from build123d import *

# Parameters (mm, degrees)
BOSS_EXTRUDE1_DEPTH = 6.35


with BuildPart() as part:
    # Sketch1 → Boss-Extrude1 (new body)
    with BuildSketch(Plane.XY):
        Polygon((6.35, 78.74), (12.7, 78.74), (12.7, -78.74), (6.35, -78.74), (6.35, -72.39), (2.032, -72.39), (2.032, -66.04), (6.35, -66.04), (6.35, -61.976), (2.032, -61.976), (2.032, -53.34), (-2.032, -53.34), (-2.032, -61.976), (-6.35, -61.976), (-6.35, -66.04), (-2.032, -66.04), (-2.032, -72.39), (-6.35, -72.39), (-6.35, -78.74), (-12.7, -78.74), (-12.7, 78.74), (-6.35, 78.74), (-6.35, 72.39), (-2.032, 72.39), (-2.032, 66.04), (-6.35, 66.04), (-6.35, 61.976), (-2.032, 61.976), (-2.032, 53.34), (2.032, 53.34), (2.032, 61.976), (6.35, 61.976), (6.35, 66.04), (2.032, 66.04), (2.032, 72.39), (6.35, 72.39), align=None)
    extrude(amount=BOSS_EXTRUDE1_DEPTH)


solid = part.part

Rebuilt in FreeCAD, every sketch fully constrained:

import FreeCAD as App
import Part
import Sketcher
Q = App.Units.Quantity


def add_polygon(sketch, points):
    """Adds a closed chain of lines whose ends are joined by coincident constraints."""
    first, n = sketch.GeometryCount, len(points)
    for a, b in zip(points, points[1:] + points[:1]):
        sketch.addGeometry(Part.LineSegment(App.Vector(*a, 0), App.Vector(*b, 0)), False)
    for i in range(n):
        sketch.addConstraint(Sketcher.Constraint("Coincident", first + i, 2, first + (i + 1) % n, 1))

doc = App.newDocument("Part")
body = doc.addObject("PartDesign::Body", "Body")

sketch1 = doc.addObject("Sketcher::SketchObject", "Sketch")
body.addObject(sketch1)
sketch1.AttachmentSupport = (doc.XY_Plane, [""])
sketch1.MapMode = "FlatFace"
add_polygon(sketch1, [(12.7, 78.74), (6.35, 78.74), (6.35, 72.39), (2.032, 72.39), (2.032, 66.04), (6.35, 66.04), (6.35, 61.976), (2.032, 61.976), (2.032, 53.34), (-2.032, 53.34), (-2.032, 61.976), (-6.35, 61.976), (-6.35, 66.04), (-2.032, 66.04), (-2.032, 72.39), (-6.35, 72.39), (-6.35, 78.74), (-12.7, 78.74), (-12.7, -78.74), (-6.35, -78.74), (-6.35, -72.39), (-2.032, -72.39), (-2.032, -66.04), (-6.35, -66.04), (-6.35, -61.976), (-2.032, -61.976), (-2.032, -53.34), (2.032, -53.34), (2.032, -61.976), (6.35, -61.976), (6.35, -66.04), (2.032, -66.04), (2.032, -72.39), (6.35, -72.39), (6.35, -78.74), (12.7, -78.74)])
sketch1.addConstraint(Sketcher.Constraint("Horizontal", 0))
sketch1.addConstraint(Sketcher.Constraint("Vertical", 1))
sketch1.addConstraint(Sketcher.Constraint("Horizontal", 2))
sketch1.addConstraint(Sketcher.Constraint("Vertical", 3))
sketch1.addConstraint(Sketcher.Constraint("Horizontal", 4))
sketch1.addConstraint(Sketcher.Constraint("Vertical", 5))
sketch1.addConstraint(Sketcher.Constraint("Horizontal", 6))
sketch1.addConstraint(Sketcher.Constraint("Vertical", 7))
sketch1.addConstraint(Sketcher.Constraint("Horizontal", 8))
sketch1.addConstraint(Sketcher.Constraint("Vertical", 9))
sketch1.addConstraint(Sketcher.Constraint("Horizontal", 10))
sketch1.addConstraint(Sketcher.Constraint("Vertical", 11))
sketch1.addConstraint(Sketcher.Constraint("Horizontal", 12))
sketch1.addConstraint(Sketcher.Constraint("Vertical", 13))
sketch1.addConstraint(Sketcher.Constraint("Horizontal", 14))
sketch1.addConstraint(Sketcher.Constraint("Vertical", 15))
sketch1.addConstraint(Sketcher.Constraint("Horizontal", 16))
sketch1.addConstraint(Sketcher.Constraint("Vertical", 17))
sketch1.addConstraint(Sketcher.Constraint("Horizontal", 18))
sketch1.addConstraint(Sketcher.Constraint("Vertical", 19))
sketch1.addConstraint(Sketcher.Constraint("Horizontal", 20))
sketch1.addConstraint(Sketcher.Constraint("Vertical", 21))
sketch1.addConstraint(Sketcher.Constraint("Horizontal", 22))
sketch1.addConstraint(Sketcher.Constraint("Vertical", 23))
sketch1.addConstraint(Sketcher.Constraint("Horizontal", 24))
sketch1.addConstraint(Sketcher.Constraint("Vertical", 25))
sketch1.addConstraint(Sketcher.Constraint("Horizontal", 26))
sketch1.addConstraint(Sketcher.Constraint("Vertical", 27))
sketch1.addConstraint(Sketcher.Constraint("Horizontal", 28))
sketch1.addConstraint(Sketcher.Constraint("Vertical", 29))
sketch1.addConstraint(Sketcher.Constraint("Horizontal", 30))
sketch1.addConstraint(Sketcher.Constraint("Vertical", 31))
sketch1.addConstraint(Sketcher.Constraint("Horizontal", 32))
sketch1.addConstraint(Sketcher.Constraint("Vertical", 33))
sketch1.addConstraint(Sketcher.Constraint("Horizontal", 34))
sketch1.addConstraint(Sketcher.Constraint("Vertical", 35))
sketch1.addConstraint(Sketcher.Constraint("Symmetric", 0, 2, 18, 2, -1, 1))
sketch1.addConstraint(Sketcher.Constraint("Symmetric", 2, 2, 20, 2, -1, 1))
sketch1.addConstraint(Sketcher.Constraint("Symmetric", 4, 2, 22, 2, -1, 1))
sketch1.addConstraint(Sketcher.Constraint("Symmetric", 6, 2, 24, 2, -1, 1))
sketch1.addConstraint(Sketcher.Constraint("Symmetric", 8, 2, 26, 2, -1, 1))
sketch1.addConstraint(Sketcher.Constraint("Symmetric", 10, 2, 28, 2, -1, 1))
sketch1.addConstraint(Sketcher.Constraint("Symmetric", 12, 2, 30, 2, -1, 1))
sketch1.addConstraint(Sketcher.Constraint("Symmetric", 14, 2, 32, 2, -1, 1))
sketch1.addConstraint(Sketcher.Constraint("Symmetric", 16, 2, 34, 2, -1, 1))
sketch1.addConstraint(Sketcher.Constraint("Symmetric", 6, 2, 9, 2, -2))
sketch1.addConstraint(Sketcher.Constraint("Symmetric", 4, 2, 11, 2, -2))
sketch1.addConstraint(Sketcher.Constraint("Symmetric", 2, 2, 13, 2, -2))
sketch1.addConstraint(Sketcher.Constraint("Symmetric", 0, 2, 15, 2, -2))
sketch1.addConstraint(Sketcher.Constraint("Vertical", 1, 2, 4, 2))
sketch1.addConstraint(Sketcher.Constraint("Vertical", 3, 2, 6, 2))
sketch1.addConstraint(Sketcher.Constraint("Equal", 34, 1))
sketch1.addConstraint(Sketcher.Constraint("Equal", 1, 3))
sketch1.addConstraint(Sketcher.Constraint("Equal", 26, 5))
sketch1.addConstraint(Sketcher.Constraint("DistanceY", 17, 2, 17, 1, Q("6.2 in")))
sketch1.addConstraint(Sketcher.Constraint("DistanceX", 0, 2, 0, 1, Q("0.25 in")))
sketch1.addConstraint(Sketcher.Constraint("DistanceX", 2, 2, 2, 1, Q("0.17 in")))
sketch1.addConstraint(Sketcher.Constraint("DistanceX", 8, 2, 8, 1, Q("0.16 in")))
sketch1.addConstraint(Sketcher.Constraint("DistanceY", 7, 2, 7, 1, Q("0.34 in")))
pad1 = doc.addObject("PartDesign::Pad", "Pad")
body.addObject(pad1)
pad1.Profile = sketch1
pad1.Length = Q("0.25 in")

doc.recompute()
